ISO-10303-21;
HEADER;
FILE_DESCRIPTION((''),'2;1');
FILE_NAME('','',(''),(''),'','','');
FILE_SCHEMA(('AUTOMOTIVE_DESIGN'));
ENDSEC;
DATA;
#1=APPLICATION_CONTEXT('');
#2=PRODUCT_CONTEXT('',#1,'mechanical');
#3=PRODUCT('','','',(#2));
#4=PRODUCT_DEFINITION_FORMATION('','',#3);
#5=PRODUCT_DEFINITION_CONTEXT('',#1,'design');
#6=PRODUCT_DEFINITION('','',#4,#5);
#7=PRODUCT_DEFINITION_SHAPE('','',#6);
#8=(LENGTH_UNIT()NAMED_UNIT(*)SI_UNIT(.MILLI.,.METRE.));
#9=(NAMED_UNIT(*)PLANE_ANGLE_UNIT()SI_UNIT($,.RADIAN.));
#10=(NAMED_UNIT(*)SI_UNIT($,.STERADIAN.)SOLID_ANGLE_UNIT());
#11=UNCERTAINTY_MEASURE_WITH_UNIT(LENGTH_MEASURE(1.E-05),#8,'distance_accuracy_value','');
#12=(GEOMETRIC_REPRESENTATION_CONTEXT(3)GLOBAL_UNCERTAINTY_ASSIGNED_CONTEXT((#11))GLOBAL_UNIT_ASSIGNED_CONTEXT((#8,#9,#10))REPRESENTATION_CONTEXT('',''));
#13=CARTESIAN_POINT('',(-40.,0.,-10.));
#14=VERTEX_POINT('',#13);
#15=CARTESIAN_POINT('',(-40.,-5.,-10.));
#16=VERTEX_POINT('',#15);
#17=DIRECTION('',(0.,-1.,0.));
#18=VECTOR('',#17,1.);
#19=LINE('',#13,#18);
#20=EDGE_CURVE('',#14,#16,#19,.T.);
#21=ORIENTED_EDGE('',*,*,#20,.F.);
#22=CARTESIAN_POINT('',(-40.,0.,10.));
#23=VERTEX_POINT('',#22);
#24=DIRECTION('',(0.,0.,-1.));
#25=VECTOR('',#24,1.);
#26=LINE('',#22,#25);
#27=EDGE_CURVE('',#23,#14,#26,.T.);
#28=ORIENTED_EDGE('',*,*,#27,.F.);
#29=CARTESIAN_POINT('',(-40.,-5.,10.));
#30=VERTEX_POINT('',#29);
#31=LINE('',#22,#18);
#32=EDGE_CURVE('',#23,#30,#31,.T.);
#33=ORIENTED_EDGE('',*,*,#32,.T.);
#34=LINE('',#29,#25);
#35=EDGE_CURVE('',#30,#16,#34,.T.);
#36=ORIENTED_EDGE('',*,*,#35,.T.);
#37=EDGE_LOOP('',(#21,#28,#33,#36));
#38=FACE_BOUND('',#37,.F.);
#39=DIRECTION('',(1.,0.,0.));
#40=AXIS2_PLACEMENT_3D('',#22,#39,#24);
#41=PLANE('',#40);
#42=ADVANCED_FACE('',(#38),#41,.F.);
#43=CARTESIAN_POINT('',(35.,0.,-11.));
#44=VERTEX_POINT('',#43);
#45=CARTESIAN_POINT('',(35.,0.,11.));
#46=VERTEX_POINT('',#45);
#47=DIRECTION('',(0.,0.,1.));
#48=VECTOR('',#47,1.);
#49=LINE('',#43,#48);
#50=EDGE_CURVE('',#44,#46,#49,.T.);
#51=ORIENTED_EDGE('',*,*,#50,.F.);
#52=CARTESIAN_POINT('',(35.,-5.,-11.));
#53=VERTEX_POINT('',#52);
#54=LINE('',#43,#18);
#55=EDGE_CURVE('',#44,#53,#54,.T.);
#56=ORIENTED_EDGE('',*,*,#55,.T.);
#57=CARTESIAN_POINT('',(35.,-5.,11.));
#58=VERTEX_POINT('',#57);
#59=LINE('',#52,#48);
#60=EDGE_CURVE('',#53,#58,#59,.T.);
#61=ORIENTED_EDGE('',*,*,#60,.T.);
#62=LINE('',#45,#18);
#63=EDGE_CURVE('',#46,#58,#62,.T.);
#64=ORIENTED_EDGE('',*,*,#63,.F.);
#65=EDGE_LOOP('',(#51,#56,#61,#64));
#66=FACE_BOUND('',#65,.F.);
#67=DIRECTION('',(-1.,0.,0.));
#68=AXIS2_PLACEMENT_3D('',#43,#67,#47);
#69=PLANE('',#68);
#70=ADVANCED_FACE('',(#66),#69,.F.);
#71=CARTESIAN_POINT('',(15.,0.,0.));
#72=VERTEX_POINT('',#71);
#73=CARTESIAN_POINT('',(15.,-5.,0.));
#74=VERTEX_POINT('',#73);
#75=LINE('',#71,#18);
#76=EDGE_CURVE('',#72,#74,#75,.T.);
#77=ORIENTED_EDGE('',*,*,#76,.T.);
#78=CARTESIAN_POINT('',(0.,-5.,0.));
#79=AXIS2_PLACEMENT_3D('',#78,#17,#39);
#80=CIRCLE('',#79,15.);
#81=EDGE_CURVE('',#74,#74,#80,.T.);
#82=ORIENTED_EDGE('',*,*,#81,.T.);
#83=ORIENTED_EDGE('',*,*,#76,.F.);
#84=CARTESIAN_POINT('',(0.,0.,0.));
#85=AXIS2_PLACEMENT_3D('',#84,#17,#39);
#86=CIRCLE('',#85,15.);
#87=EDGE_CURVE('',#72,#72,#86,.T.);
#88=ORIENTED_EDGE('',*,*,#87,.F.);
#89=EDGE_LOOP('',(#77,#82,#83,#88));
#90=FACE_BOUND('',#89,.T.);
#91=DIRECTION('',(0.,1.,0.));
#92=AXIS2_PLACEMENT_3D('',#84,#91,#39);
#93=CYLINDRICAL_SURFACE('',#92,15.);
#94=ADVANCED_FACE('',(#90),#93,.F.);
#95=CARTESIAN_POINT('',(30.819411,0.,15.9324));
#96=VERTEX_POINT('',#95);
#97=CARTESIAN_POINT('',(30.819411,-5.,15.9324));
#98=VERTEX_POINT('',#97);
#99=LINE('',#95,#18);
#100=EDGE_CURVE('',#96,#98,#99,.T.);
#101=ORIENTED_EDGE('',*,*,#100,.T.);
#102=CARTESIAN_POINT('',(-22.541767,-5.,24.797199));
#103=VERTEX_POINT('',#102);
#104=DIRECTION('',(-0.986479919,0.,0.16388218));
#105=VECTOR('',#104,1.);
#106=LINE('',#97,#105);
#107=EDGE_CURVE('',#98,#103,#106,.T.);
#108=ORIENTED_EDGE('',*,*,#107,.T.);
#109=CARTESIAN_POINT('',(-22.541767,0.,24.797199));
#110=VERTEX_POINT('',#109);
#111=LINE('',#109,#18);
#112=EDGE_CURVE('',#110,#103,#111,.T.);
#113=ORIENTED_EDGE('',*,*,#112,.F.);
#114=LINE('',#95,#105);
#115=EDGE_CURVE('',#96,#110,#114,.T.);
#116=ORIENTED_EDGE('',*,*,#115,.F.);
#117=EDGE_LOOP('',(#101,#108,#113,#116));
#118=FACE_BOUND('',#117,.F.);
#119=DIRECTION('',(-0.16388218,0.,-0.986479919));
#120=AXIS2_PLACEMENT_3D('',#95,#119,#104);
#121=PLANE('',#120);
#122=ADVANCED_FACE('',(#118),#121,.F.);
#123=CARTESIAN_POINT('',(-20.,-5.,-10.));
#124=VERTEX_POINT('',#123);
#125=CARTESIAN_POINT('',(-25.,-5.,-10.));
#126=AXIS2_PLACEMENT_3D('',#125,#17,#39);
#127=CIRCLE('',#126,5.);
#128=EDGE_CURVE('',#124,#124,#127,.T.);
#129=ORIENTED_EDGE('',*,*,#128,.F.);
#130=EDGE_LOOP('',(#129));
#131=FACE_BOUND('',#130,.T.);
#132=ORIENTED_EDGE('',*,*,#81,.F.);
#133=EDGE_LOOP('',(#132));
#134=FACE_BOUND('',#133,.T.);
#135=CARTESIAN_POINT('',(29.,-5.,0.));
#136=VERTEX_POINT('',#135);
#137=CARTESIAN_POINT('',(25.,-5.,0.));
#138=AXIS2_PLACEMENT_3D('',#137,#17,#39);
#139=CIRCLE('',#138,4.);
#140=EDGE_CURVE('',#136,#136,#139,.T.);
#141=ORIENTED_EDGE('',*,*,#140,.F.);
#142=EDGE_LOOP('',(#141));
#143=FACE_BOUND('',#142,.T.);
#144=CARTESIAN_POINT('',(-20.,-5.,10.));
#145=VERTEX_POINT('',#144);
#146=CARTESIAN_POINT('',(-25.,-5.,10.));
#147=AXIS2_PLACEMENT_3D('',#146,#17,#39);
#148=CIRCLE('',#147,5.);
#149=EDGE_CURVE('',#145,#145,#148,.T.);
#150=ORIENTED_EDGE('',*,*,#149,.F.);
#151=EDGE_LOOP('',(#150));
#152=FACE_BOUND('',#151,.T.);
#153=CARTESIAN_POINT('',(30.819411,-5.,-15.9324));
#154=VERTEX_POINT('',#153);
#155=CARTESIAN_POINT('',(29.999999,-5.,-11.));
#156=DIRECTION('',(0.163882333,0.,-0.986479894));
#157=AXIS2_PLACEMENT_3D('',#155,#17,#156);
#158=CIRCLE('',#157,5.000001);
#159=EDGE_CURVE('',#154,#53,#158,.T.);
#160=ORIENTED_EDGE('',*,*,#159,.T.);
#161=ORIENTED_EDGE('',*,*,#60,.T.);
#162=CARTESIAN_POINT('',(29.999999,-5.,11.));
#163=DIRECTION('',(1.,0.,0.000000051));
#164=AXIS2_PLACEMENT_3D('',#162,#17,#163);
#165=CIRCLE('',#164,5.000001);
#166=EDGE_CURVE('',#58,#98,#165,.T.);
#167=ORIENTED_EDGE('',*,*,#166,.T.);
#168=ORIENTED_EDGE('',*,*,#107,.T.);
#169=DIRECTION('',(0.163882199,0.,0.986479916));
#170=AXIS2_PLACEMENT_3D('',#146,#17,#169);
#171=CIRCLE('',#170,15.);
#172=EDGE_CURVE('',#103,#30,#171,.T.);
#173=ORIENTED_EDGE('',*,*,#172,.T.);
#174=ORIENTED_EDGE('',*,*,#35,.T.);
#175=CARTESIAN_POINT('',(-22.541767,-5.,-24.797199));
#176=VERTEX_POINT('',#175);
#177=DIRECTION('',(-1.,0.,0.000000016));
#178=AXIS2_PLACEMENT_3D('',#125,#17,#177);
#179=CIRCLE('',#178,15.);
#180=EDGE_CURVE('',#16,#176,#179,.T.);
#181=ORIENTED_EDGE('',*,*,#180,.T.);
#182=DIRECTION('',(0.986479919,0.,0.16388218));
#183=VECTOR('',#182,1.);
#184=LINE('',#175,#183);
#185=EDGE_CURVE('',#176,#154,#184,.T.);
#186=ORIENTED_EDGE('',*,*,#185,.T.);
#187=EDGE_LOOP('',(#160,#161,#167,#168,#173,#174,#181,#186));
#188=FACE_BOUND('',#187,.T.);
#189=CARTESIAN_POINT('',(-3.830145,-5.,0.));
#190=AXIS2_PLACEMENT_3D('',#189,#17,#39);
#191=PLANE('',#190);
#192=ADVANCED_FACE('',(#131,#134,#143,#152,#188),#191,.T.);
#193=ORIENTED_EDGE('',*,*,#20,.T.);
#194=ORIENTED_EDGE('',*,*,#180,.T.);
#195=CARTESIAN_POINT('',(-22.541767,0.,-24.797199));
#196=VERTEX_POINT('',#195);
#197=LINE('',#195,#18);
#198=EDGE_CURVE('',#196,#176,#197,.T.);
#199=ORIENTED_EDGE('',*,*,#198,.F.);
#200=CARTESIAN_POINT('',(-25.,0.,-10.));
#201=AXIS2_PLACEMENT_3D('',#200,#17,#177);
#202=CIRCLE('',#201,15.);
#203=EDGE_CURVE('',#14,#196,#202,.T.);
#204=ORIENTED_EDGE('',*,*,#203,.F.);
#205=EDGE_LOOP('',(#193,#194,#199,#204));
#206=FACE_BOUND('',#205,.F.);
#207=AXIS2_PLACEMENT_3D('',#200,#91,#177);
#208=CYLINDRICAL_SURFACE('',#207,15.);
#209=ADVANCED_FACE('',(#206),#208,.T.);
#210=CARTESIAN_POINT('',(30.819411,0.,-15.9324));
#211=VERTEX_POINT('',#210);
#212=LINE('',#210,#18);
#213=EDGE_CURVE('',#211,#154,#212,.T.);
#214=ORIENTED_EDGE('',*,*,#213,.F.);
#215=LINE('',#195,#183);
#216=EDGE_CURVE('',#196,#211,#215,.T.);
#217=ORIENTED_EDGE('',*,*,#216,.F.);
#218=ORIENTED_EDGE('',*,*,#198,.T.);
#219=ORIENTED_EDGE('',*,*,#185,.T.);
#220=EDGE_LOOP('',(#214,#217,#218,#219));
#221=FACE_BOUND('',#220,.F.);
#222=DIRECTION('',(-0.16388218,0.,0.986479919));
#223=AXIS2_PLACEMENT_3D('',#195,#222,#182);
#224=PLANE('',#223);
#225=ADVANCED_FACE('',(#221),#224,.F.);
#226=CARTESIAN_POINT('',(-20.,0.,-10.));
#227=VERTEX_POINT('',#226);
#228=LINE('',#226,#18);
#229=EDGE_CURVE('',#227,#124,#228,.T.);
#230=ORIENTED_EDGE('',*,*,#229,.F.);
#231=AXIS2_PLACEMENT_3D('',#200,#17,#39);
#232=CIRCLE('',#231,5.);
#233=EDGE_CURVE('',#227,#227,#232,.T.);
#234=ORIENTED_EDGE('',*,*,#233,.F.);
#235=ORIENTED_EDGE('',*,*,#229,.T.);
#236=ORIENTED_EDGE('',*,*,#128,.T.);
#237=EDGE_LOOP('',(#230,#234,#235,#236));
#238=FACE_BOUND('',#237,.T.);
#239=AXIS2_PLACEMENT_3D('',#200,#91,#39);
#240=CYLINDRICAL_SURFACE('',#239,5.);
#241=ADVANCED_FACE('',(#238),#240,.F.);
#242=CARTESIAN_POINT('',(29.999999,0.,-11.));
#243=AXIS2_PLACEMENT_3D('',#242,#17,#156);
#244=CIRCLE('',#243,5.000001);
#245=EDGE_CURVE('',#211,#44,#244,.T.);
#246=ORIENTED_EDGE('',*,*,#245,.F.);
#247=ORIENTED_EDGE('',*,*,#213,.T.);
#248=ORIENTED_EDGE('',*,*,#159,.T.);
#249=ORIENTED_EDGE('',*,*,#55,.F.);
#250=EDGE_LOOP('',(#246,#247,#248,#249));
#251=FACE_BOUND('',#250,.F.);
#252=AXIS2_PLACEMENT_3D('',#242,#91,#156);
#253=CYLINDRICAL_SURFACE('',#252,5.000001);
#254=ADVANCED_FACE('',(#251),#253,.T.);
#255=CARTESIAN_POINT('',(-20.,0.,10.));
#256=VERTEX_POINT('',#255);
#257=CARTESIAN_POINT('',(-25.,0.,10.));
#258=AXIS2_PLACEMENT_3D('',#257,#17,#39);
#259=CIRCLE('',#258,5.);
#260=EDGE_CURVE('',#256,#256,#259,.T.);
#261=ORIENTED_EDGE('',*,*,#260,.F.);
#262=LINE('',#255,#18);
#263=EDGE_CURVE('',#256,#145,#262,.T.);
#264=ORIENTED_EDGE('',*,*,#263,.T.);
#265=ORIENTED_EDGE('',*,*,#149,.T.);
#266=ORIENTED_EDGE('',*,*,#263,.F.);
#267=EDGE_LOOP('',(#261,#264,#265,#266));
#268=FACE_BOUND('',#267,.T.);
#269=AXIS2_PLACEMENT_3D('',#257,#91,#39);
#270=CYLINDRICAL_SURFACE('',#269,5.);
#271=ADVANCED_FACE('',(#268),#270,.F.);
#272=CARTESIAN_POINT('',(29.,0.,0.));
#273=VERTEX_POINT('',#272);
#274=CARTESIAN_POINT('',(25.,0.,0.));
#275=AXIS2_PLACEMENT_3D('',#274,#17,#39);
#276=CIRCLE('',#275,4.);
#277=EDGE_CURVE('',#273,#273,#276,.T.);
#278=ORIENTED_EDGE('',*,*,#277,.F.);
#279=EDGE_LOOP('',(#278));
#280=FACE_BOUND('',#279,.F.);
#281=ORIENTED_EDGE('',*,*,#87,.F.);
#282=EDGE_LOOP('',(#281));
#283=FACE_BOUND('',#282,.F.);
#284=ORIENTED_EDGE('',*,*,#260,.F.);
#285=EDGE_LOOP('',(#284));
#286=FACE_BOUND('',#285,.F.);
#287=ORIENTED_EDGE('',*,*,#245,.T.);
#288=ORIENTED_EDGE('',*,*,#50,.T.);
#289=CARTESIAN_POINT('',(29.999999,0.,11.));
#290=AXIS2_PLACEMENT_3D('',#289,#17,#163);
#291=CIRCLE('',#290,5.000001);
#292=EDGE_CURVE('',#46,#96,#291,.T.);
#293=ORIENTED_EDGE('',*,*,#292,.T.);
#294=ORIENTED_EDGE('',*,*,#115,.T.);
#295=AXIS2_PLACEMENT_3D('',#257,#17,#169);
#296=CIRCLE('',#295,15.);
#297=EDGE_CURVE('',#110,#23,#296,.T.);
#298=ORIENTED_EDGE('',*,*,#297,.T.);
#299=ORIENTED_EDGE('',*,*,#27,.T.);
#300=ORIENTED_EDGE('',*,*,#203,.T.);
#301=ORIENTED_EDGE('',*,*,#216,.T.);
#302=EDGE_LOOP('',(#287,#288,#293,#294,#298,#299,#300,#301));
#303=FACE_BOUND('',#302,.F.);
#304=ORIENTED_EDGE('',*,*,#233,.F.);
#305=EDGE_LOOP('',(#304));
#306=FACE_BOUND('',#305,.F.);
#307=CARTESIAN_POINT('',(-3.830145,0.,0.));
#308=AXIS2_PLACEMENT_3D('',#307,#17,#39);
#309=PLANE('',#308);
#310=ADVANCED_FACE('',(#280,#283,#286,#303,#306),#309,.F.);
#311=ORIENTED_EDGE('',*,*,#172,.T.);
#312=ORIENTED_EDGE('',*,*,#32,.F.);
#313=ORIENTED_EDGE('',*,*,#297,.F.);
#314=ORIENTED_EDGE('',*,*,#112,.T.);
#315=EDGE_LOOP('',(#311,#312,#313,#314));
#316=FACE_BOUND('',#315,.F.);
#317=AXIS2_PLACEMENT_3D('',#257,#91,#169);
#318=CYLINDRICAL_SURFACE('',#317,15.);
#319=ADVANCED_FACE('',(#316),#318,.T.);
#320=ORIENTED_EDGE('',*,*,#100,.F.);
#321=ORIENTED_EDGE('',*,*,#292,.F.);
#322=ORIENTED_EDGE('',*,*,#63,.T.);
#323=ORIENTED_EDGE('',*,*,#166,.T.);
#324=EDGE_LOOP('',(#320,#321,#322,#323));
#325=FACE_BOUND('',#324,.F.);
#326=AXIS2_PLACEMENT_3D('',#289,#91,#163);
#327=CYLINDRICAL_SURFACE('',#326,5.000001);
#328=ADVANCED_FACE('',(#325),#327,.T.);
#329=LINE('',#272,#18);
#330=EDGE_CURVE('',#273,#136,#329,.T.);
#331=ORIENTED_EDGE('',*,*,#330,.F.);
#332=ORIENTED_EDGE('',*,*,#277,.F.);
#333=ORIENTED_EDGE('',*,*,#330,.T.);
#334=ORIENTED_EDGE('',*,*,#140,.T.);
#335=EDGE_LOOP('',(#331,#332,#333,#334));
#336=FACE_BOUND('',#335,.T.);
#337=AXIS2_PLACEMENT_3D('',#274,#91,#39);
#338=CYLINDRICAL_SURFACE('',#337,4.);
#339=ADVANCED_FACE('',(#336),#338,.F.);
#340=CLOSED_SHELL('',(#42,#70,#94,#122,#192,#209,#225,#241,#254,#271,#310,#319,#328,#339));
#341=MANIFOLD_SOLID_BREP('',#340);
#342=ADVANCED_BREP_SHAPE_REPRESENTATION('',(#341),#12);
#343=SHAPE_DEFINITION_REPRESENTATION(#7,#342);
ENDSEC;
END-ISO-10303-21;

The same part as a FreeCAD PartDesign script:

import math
import FreeCAD as App
import Part
import Sketcher
from FreeCAD import Vector
Q = App.Units.Quantity

doc = App.newDocument("Part")
params = doc.addObject("Spreadsheet::Sheet", "Params")
for row, (alias, value) in enumerate([
    ("sketch1_diameter", "10 mm"),
    ("sketch1_diameter2", "30 mm"),
    ("sketch1_diameter3", "8 mm"),
    ("sketch1_height", "20 mm"),
    ("sketch1_height2", "22 mm"),
    ("pad1_length", "5 mm"),
], start=1):
    params.set(f"A{row}", alias)
    params.set(f"B{row}", "=" + value)
    params.setAlias(f"B{row}", alias)

body = doc.addObject("PartDesign::Body", "Body")

# Sketch on XZ plane
sketch1 = doc.addObject("Sketcher::SketchObject", "Sketch")
body.addObject(sketch1)
sketch1.AttachmentSupport = (doc.XZ_Plane, [""])
sketch1.MapMode = "FlatFace"
sketch1.addGeometry([
    Part.LineSegment(Vector(30.8, 15.9, 0), Vector(-22.5, 24.8, 0)),  # 0
    Part.ArcOfCircle(Part.Circle(Vector(-25, 10, 0), Vector(0, 0, 1), 15), math.radians(81), math.radians(180)),  # 1
    Part.LineSegment(Vector(-40, 10, 0), Vector(-40, -10, 0)),  # 2
    Part.ArcOfCircle(Part.Circle(Vector(-25, -10, 0), Vector(0, 0, 1), 15), math.radians(180), math.radians(279)),  # 3
    Part.LineSegment(Vector(-22.5, -24.8, 0), Vector(30.8, -15.9, 0)),  # 4
    Part.ArcOfCircle(Part.Circle(Vector(30, -11, 0), Vector(0, 0, 1), 5), math.radians(-81), math.radians(0)),  # 5
    Part.LineSegment(Vector(35, -11, 0), Vector(35, 11, 0)),  # 6
    Part.ArcOfCircle(Part.Circle(Vector(30, 11, 0), Vector(0, 0, 1), 5), math.radians(0), math.radians(81)),  # 7
    Part.Circle(Vector(-25, -10, 0), Vector(0, 0, 1), 5),  # 8
    Part.Circle(Vector(-25, 10, 0), Vector(0, 0, 1), 5),  # 9
    Part.Circle(Vector(0, 0, 0), Vector(0, 0, 1), 15),  # 10
    Part.Circle(Vector(25, 0, 0), Vector(0, 0, 1), 4),  # 11
], False)
sketch1.addConstraint([
    Sketcher.Constraint("Tangent", 0, 2, 1, 1),
    Sketcher.Constraint("Tangent", 1, 2, 2, 1),
    Sketcher.Constraint("Tangent", 2, 2, 3, 1),
    Sketcher.Constraint("Tangent", 3, 2, 4, 1),
    Sketcher.Constraint("Tangent", 4, 2, 5, 1),
    Sketcher.Constraint("Tangent", 5, 2, 6, 1),
    Sketcher.Constraint("Tangent", 6, 2, 7, 1),
    Sketcher.Constraint("Tangent", 7, 2, 0, 1),
    Sketcher.Constraint("Vertical", 2),
    Sketcher.Constraint("Vertical", 6),
    Sketcher.Constraint("Coincident", 10, 3, -1, 1),
    Sketcher.Constraint("Coincident", 8, 3, 3, 3),
    Sketcher.Constraint("Coincident", 9, 3, 1, 3),
    Sketcher.Constraint("Equal", 1, 3),
    Sketcher.Constraint("Equal", 5, 7),
    Sketcher.Constraint("Equal", 7, 8),
    Sketcher.Constraint("Equal", 8, 9),
    Sketcher.Constraint("Equal", 3, 10),
    Sketcher.Constraint("Symmetric", 0, 2, 3, 2, -1),
    Sketcher.Constraint("PointOnObject", 11, 3, -1),
    Sketcher.Constraint("Diameter", 8, Q("10 mm")),
    Sketcher.Constraint("Diameter", 10, Q("30 mm")),
    Sketcher.Constraint("Diameter", 11, Q("8 mm")),
    Sketcher.Constraint("DistanceY", 2, 2, 2, 1, Q("20 mm")),
    Sketcher.Constraint("DistanceY", 6, 1, 6, 2, Q("22 mm")),
    Sketcher.Constraint("DistanceX", 1, 3, -1, 1, Q("25 mm")),
    Sketcher.Constraint("DistanceX", -1, 1, 5, 3, Q("29.999999 mm")),
    Sketcher.Constraint("DistanceX", -1, 1, 11, 3, Q("25 mm")),
])
sketch1.setExpression("Constraints[20]", "Params.sketch1_diameter")
sketch1.setExpression("Constraints[21]", "Params.sketch1_diameter2")
sketch1.setExpression("Constraints[22]", "Params.sketch1_diameter3")
sketch1.setExpression("Constraints[23]", "Params.sketch1_height")
sketch1.setExpression("Constraints[24]", "Params.sketch1_height2")
pad1 = doc.addObject("PartDesign::Pad", "Pad")
body.addObject(pad1)
pad1.Profile = sketch1
pad1.setExpression("Length", "Params.pad1_length")

doc.recompute()
